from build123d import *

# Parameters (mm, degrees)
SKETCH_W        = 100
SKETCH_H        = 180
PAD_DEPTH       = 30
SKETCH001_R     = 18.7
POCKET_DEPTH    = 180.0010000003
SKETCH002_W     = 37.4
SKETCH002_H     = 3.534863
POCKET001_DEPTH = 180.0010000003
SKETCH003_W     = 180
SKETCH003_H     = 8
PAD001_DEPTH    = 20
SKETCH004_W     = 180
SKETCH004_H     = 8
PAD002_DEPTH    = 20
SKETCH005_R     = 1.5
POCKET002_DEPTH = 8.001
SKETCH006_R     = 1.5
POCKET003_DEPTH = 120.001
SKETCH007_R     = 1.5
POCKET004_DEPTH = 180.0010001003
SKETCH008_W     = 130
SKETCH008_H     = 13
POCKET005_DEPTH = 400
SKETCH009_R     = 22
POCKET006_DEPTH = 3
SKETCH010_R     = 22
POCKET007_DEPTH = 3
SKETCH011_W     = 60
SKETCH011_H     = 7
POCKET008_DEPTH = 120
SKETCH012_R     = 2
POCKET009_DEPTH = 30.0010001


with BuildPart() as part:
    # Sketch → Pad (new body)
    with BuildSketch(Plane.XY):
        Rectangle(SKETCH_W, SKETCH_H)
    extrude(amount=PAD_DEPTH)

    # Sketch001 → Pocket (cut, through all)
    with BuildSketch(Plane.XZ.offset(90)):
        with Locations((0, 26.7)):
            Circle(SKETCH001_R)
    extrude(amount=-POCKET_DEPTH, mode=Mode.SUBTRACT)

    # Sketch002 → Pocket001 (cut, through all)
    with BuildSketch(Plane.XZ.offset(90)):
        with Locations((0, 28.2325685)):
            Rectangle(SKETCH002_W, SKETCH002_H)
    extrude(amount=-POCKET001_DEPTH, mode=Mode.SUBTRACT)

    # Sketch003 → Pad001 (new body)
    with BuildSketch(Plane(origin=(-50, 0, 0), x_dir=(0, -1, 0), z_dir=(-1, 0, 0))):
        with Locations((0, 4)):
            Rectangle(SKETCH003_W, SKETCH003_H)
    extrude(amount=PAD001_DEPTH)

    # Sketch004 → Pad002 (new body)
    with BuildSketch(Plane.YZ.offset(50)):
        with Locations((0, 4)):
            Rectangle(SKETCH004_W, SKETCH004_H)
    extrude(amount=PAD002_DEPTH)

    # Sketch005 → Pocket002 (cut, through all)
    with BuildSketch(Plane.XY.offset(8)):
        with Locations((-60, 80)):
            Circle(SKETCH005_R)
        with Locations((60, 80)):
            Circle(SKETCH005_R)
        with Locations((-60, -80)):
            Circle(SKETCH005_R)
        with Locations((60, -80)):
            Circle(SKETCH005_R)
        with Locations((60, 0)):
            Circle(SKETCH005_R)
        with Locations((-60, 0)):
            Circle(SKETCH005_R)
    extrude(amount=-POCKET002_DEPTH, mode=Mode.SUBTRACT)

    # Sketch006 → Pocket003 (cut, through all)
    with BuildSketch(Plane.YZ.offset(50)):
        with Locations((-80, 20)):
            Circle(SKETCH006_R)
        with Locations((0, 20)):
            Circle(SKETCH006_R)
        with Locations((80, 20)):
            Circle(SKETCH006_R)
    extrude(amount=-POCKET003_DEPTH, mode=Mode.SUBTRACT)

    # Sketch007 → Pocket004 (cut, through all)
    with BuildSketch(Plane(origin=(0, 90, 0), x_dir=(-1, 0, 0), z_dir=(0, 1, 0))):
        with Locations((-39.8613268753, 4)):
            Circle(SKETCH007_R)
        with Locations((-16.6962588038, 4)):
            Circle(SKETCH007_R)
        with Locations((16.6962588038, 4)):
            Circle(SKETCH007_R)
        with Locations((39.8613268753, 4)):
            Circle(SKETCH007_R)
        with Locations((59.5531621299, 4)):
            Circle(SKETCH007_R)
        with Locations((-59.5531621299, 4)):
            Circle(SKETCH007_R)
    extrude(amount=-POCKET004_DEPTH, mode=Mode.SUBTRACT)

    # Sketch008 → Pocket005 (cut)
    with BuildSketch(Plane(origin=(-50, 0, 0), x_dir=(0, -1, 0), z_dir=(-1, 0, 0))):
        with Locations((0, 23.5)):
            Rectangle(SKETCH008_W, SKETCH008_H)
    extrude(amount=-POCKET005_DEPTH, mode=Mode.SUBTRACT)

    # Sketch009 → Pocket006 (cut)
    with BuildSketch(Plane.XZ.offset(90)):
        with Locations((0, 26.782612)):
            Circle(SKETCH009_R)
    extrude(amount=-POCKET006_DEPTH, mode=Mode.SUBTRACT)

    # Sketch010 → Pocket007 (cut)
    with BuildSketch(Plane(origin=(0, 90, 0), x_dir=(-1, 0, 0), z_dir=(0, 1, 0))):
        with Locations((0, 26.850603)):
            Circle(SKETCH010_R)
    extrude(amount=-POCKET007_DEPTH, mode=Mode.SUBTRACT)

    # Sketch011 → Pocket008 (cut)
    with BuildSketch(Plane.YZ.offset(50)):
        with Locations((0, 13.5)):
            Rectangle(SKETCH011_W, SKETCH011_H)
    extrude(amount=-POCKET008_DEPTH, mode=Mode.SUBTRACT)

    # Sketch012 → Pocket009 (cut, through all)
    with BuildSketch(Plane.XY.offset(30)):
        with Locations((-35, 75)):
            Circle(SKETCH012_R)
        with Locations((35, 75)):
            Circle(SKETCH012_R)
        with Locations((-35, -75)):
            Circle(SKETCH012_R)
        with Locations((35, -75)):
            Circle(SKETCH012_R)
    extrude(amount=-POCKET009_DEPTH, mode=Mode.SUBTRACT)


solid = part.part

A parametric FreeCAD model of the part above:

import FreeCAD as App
import Part
import Sketcher
from FreeCAD import Vector


def add_polygon(sketch, points):
    """Adds a closed chain of lines whose ends are joined by coincident constraints."""
    first, n = sketch.GeometryCount, len(points)
    for a, b in zip(points, points[1:] + points[:1]):
        sketch.addGeometry(Part.LineSegment(App.Vector(*a, 0), App.Vector(*b, 0)), False)
    for i in range(n):
        sketch.addConstraint(Sketcher.Constraint("Coincident", first + i, 2, first + (i + 1) % n, 1))

doc = App.newDocument("Part")
params = doc.addObject("Spreadsheet::Sheet", "Params")
for row, (alias, value) in enumerate([
    ("sketch1_width", "100 mm"),
    ("sketch1_height", "180 mm"),
    ("pad1_length", "30 mm"),
    ("sketch2_diameter", "37.4 mm"),
    ("sketch3_width", "37.4 mm"),
    ("sketch4_width", "180 mm"),
    ("sketch4_height", "8 mm"),
    ("pad2_length", "20 mm"),
    ("sketch5_width", "180 mm"),
    ("sketch5_height", "8 mm"),
    ("pad3_length", "20 mm"),
    ("sketch6_diameter", "3 mm"),
    ("sketch7_diameter", "3 mm"),
    ("sketch8_diameter", "3 mm"),
    ("sketch9_width", "130 mm"),
    ("sketch9_height", "13 mm"),
    ("pocket6_length", "400 mm"),
    ("sketch10_diameter", "44 mm"),
    ("pocket7_length", "3 mm"),
    ("sketch11_diameter", "44 mm"),
    ("pocket8_length", "3 mm"),
    ("sketch12_width", "60 mm"),
    ("sketch12_height", "7 mm"),
    ("pocket9_length", "120 mm"),
    ("sketch13_diameter", "4 mm"),
], start=1):
    params.set(f"A{row}", alias)
    params.set(f"B{row}", "=" + value)
    params.setAlias(f"B{row}", alias)

body = doc.addObject("PartDesign::Body", "Body")

# Sketch on XY plane
sketch1 = doc.addObject("Sketcher::SketchObject", "Sketch")
body.addObject(sketch1)
sketch1.AttachmentSupport = (doc.XY_Plane, [""])
sketch1.MapMode = "FlatFace"
add_polygon(sketch1, [(-50, 90), (-50, -90), (50, -90), (50, 90)])  # lines 0-3
sketch1.addConstraint(Sketcher.Constraint("Vertical", 0))
sketch1.addConstraint(Sketcher.Constraint("Horizontal", 1))
sketch1.addConstraint(Sketcher.Constraint("Vertical", 2))
sketch1.addConstraint(Sketcher.Constraint("Horizontal", 3))
sketch1.addConstraint(Sketcher.Constraint("Symmetric", 0, 2, 2, 2, -1, 1))
sketch1.addConstraint(Sketcher.Constraint("DistanceX", 1, 1, 1, 2, 100.0))
sketch1.addConstraint(Sketcher.Constraint("DistanceY", 0, 2, 0, 1, 180.0))
sketch1.setExpression("Constraints[9]", "Params.sketch1_width")
sketch1.setExpression("Constraints[10]", "Params.sketch1_height")
pad1 = doc.addObject("PartDesign::Pad", "Pad")
body.addObject(pad1)
pad1.Profile = sketch1
pad1.setExpression("Length", "Params.pad1_length")

# Sketch on XZ plane
sketch2 = doc.addObject("Sketcher::SketchObject", "Sketch001")
body.addObject(sketch2)
sketch2.AttachmentSupport = (doc.XZ_Plane, [""])
sketch2.MapMode = "FlatFace"
sketch2.AttachmentOffset = App.Placement(Vector(0, 0, 90), App.Rotation())
sketch2.addGeometry(Part.Circle(Vector(0, 27, 0), Vector(0, 0, 1), 19), False)
sketch2.addConstraint(Sketcher.Constraint("PointOnObject", 0, 3, -2))
sketch2.addConstraint(Sketcher.Constraint("Diameter", 0, 37.4))
sketch2.addConstraint(Sketcher.Constraint("DistanceY", -1, 1, 0, 3, 26.7))
sketch2.setExpression("Constraints[1]", "Params.sketch2_diameter")
pocket1 = doc.addObject("PartDesign::Pocket", "Pocket")
body.addObject(pocket1)
pocket1.Profile = sketch2
pocket1.Type = "ThroughAll"

# Sketch on XZ plane
sketch3 = doc.addObject("Sketcher::SketchObject", "Sketch002")
body.addObject(sketch3)
sketch3.AttachmentSupport = (doc.XZ_Plane, [""])
sketch3.MapMode = "FlatFace"
sketch3.AttachmentOffset = App.Placement(Vector(0, 0, 90), App.Rotation())
add_polygon(sketch3, [(-18.7, 30), (-18.7, 26.5), (18.7, 26.5), (18.7, 30)])  # lines 0-3
sketch3.addConstraint(Sketcher.Constraint("Vertical", 0))
sketch3.addConstraint(Sketcher.Constraint("Horizontal", 1))
sketch3.addConstraint(Sketcher.Constraint("Vertical", 2))
sketch3.addConstraint(Sketcher.Constraint("Horizontal", 3))
sketch3.addConstraint(Sketcher.Constraint("DistanceX", 1, 1, 1, 2, 37.4))
sketch3.addConstraint(Sketcher.Constraint("DistanceY", -1, 1, 2, 2, 30.0))
sketch3.addConstraint(Sketcher.Constraint("DistanceX", 0, 2, -1, 1, 18.7))
sketch3.addConstraint(Sketcher.Constraint("DistanceY", 0, 2, 0, 1, 3.534863))
sketch3.setExpression("Constraints[8]", "Params.sketch3_width")
pocket2 = doc.addObject("PartDesign::Pocket", "Pocket001")
body.addObject(pocket2)
pocket2.Profile = sketch3
pocket2.Type = "ThroughAll"

# Sketch on YZ plane
sketch4 = doc.addObject("Sketcher::SketchObject", "Sketch003")
body.addObject(sketch4)
sketch4.AttachmentSupport = (doc.YZ_Plane, [""])
sketch4.MapMode = "FlatFace"
sketch4.AttachmentOffset = App.Placement(Vector(0, 0, -50), App.Rotation())
add_polygon(sketch4, [(90, 8), (90, 0), (-90, 0), (-90, 8)])  # lines 0-3
sketch4.addConstraint(Sketcher.Constraint("Vertical", 0))
sketch4.addConstraint(Sketcher.Constraint("Horizontal", 1))
sketch4.addConstraint(Sketcher.Constraint("Vertical", 2))
sketch4.addConstraint(Sketcher.Constraint("Horizontal", 3))
sketch4.addConstraint(Sketcher.Constraint("Symmetric", 0, 2, 1, 2, -1, 1))
sketch4.addConstraint(Sketcher.Constraint("DistanceX", 1, 2, 1, 1, 180.0))
sketch4.addConstraint(Sketcher.Constraint("DistanceY", 0, 2, 0, 1, 8.0))
sketch4.setExpression("Constraints[9]", "Params.sketch4_width")
sketch4.setExpression("Constraints[10]", "Params.sketch4_height")
pad2 = doc.addObject("PartDesign::Pad", "Pad001")
body.addObject(pad2)
pad2.Profile = sketch4
pad2.setExpression("Length", "Params.pad2_length")
pad2.Reversed = True

# Sketch on YZ plane
sketch5 = doc.addObject("Sketcher::SketchObject", "Sketch004")
body.addObject(sketch5)
sketch5.AttachmentSupport = (doc.YZ_Plane, [""])
sketch5.MapMode = "FlatFace"
sketch5.AttachmentOffset = App.Placement(Vector(0, 0, 50), App.Rotation())
add_polygon(sketch5, [(-90, 8), (-90, 0), (90, 0), (90, 8)])  # lines 0-3
sketch5.addConstraint(Sketcher.Constraint("Vertical", 0))
sketch5.addConstraint(Sketcher.Constraint("Horizontal", 1))
sketch5.addConstraint(Sketcher.Constraint("Vertical", 2))
sketch5.addConstraint(Sketcher.Constraint("Horizontal", 3))
sketch5.addConstraint(Sketcher.Constraint("Symmetric", 0, 2, 1, 2, -1, 1))
sketch5.addConstraint(Sketcher.Constraint("DistanceX", 1, 1, 1, 2, 180.0))
sketch5.addConstraint(Sketcher.Constraint("DistanceY", 0, 2, 0, 1, 8.0))
sketch5.setExpression("Constraints[9]", "Params.sketch5_width")
sketch5.setExpression("Constraints[10]", "Params.sketch5_height")
pad3 = doc.addObject("PartDesign::Pad", "Pad002")
body.addObject(pad3)
pad3.Profile = sketch5
pad3.setExpression("Length", "Params.pad3_length")

# Sketch on XY plane
sketch6 = doc.addObject("Sketcher::SketchObject", "Sketch005")
body.addObject(sketch6)
sketch6.AttachmentSupport = (doc.XY_Plane, [""])
sketch6.MapMode = "FlatFace"
sketch6.AttachmentOffset = App.Placement(Vector(0, 0, 8), App.Rotation())
sketch6.addGeometry(Part.Circle(Vector(-60, 80, 0), Vector(0, 0, 1), 1.5), False)
sketch6.addGeometry(Part.Circle(Vector(60, 80, 0), Vector(0, 0, 1), 1.5), False)
sketch6.addGeometry(Part.Circle(Vector(-60, -80, 0), Vector(0, 0, 1), 1.5), False)
sketch6.addGeometry(Part.Circle(Vector(60, -80, 0), Vector(0, 0, 1), 1.5), False)
sketch6.addGeometry(Part.Circle(Vector(60, 0, 0), Vector(0, 0, 1), 1.5), False)
sketch6.addGeometry(Part.Circle(Vector(-60, 0, 0), Vector(0, 0, 1), 1.5), False)
sketch6.addConstraint(Sketcher.Constraint("Equal", 0, 1))
sketch6.addConstraint(Sketcher.Constraint("Equal", 1, 2))
sketch6.addConstraint(Sketcher.Constraint("Equal", 2, 3))
sketch6.addConstraint(Sketcher.Constraint("Equal", 3, 4))
sketch6.addConstraint(Sketcher.Constraint("Equal", 4, 5))
sketch6.addConstraint(Sketcher.Constraint("Symmetric", 1, 3, 2, 3, -1, 1))
sketch6.addConstraint(Sketcher.Constraint("Symmetric", 0, 3, 3, 3, -1, 1))
sketch6.addConstraint(Sketcher.Constraint("Symmetric", 4, 3, 5, 3, -1, 1))
sketch6.addConstraint(Sketcher.Constraint("Symmetric", 0, 3, 1, 3, -2))
sketch6.addConstraint(Sketcher.Constraint("PointOnObject", 4, 3, -1))
sketch6.addConstraint(Sketcher.Constraint("Vertical", 3, 3, 4, 3))
sketch6.addConstraint(Sketcher.Constraint("Diameter", 0, 3.0))
sketch6.addConstraint(Sketcher.Constraint("DistanceX", 0, 3, -1, 1, 60.0))
sketch6.addConstraint(Sketcher.Constraint("DistanceY", -1, 1, 0, 3, 80.0))
sketch6.setExpression("Constraints[11]", "Params.sketch6_diameter")
pocket3 = doc.addObject("PartDesign::Pocket", "Pocket002")
body.addObject(pocket3)
pocket3.Profile = sketch6
pocket3.Type = "ThroughAll"

# Sketch on YZ plane
sketch7 = doc.addObject("Sketcher::SketchObject", "Sketch006")
body.addObject(sketch7)
sketch7.AttachmentSupport = (doc.YZ_Plane, [""])
sketch7.MapMode = "FlatFace"
sketch7.AttachmentOffset = App.Placement(Vector(0, 0, 50), App.Rotation())
sketch7.addGeometry(Part.Circle(Vector(-80, 20, 0), Vector(0, 0, 1), 1.5), False)
sketch7.addGeometry(Part.Circle(Vector(0, 20, 0), Vector(0, 0, 1), 1.5), False)
sketch7.addGeometry(Part.Circle(Vector(80, 20, 0), Vector(0, 0, 1), 1.5), False)
sketch7.addConstraint(Sketcher.Constraint("Equal", 0, 1))
sketch7.addConstraint(Sketcher.Constraint("Equal", 1, 2))
sketch7.addConstraint(Sketcher.Constraint("Symmetric", 0, 3, 2, 3, -2))
sketch7.addConstraint(Sketcher.Constraint("PointOnObject", 1, 3, -2))
sketch7.addConstraint(Sketcher.Constraint("Horizontal", 0, 3, 1, 3))
sketch7.addConstraint(Sketcher.Constraint("Diameter", 0, 3.0))
sketch7.addConstraint(Sketcher.Constraint("DistanceX", 0, 3, -1, 1, 80.0))
sketch7.addConstraint(Sketcher.Constraint("DistanceY", -1, 1, 0, 3, 20.0))
sketch7.setExpression("Constraints[5]", "Params.sketch7_diameter")
pocket4 = doc.addObject("PartDesign::Pocket", "Pocket003")
body.addObject(pocket4)
pocket4.Profile = sketch7
pocket4.Type = "ThroughAll"

# Sketch on XZ plane
sketch8 = doc.addObject("Sketcher::SketchObject", "Sketch007")
body.addObject(sketch8)
sketch8.AttachmentSupport = (doc.XZ_Plane, [""])
sketch8.MapMode = "FlatFace"
sketch8.AttachmentOffset = App.Placement(Vector(0, 0, -90), App.Rotation())
sketch8.addGeometry(Part.Circle(Vector(39.9, 4, 0), Vector(0, 0, 1), 1.5), False)
sketch8.addGeometry(Part.Circle(Vector(16.7, 4, 0), Vector(0, 0, 1), 1.5), False)
sketch8.addGeometry(Part.Circle(Vector(-16.7, 4, 0), Vector(0, 0, 1), 1.5), False)
sketch8.addGeometry(Part.Circle(Vector(-39.9, 4, 0), Vector(0, 0, 1), 1.5), False)
sketch8.addGeometry(Part.Circle(Vector(-59.6, 4, 0), Vector(0, 0, 1), 1.5), False)
sketch8.addGeometry(Part.Circle(Vector(59.6, 4, 0), Vector(0, 0, 1), 1.5), False)
sketch8.addConstraint(Sketcher.Constraint("Equal", 0, 1))
sketch8.addConstraint(Sketcher.Constraint("Equal", 1, 2))
sketch8.addConstraint(Sketcher.Constraint("Equal", 2, 3))
sketch8.addConstraint(Sketcher.Constraint("Equal", 3, 4))
sketch8.addConstraint(Sketcher.Constraint("Equal", 4, 5))
sketch8.addConstraint(Sketcher.Constraint("Symmetric", 1, 3, 2, 3, -2))
sketch8.addConstraint(Sketcher.Constraint("Symmetric", 0, 3, 3, 3, -2))
sketch8.addConstraint(Sketcher.Constraint("Symmetric", 4, 3, 5, 3, -2))
sketch8.addConstraint(Sketcher.Constraint("Horizontal", 0, 3, 1, 3))
sketch8.addConstraint(Sketcher.Constraint("Horizontal", 3, 3, 4, 3))
sketch8.addConstraint(Sketcher.Constraint("Diameter", 0, 3.0))
sketch8.addConstraint(Sketcher.Constraint("DistanceY", -1, 1, 0, 3, 4.0))
sketch8.addConstraint(Sketcher.Constraint("DistanceX", -1, 1, 1, 3, 16.696259))
sketch8.addConstraint(Sketcher.Constraint("DistanceX", 1, 3, 0, 3, 23.165068))
sketch8.addConstraint(Sketcher.Constraint("DistanceX", 4, 3, 1, 3, 76.249421))
sketch8.setExpression("Constraints[10]", "Params.sketch8_diameter")
pocket5 = doc.addObject("PartDesign::Pocket", "Pocket004")
body.addObject(pocket5)
pocket5.Profile = sketch8
pocket5.Type = "ThroughAll"
pocket5.Reversed = True

# Sketch on YZ plane
sketch9 = doc.addObject("Sketcher::SketchObject", "Sketch008")
body.addObject(sketch9)
sketch9.AttachmentSupport = (doc.YZ_Plane, [""])
sketch9.MapMode = "FlatFace"
sketch9.AttachmentOffset = App.Placement(Vector(0, 0, -50), App.Rotation())
add_polygon(sketch9, [(65, 30), (65, 17), (-65, 17), (-65, 30)])  # lines 0-3
sketch9.addConstraint(Sketcher.Constraint("Vertical", 0))
sketch9.addConstraint(Sketcher.Constraint("Horizontal", 1))
sketch9.addConstraint(Sketcher.Constraint("Vertical", 2))
sketch9.addConstraint(Sketcher.Constraint("Horizontal", 3))
sketch9.addConstraint(Sketcher.Constraint("DistanceX", 1, 2, 1, 1, 130.0))
sketch9.addConstraint(Sketcher.Constraint("DistanceY", 0, 2, 0, 1, 13.0))
sketch9.addConstraint(Sketcher.Constraint("DistanceX", -1, 1, 0, 2, 65.0))
sketch9.addConstraint(Sketcher.Constraint("DistanceY", -1, 1, 0, 2, 17.0))
sketch9.setExpression("Constraints[8]", "Params.sketch9_width")
sketch9.setExpression("Constraints[9]", "Params.sketch9_height")
pocket6 = doc.addObject("PartDesign::Pocket", "Pocket005")
body.addObject(pocket6)
pocket6.Profile = sketch9
pocket6.setExpression("Length", "Params.pocket6_length")
pocket6.Reversed = True

# Sketch on XZ plane
sketch10 = doc.addObject("Sketcher::SketchObject", "Sketch009")
body.addObject(sketch10)
sketch10.AttachmentSupport = (doc.XZ_Plane, [""])
sketch10.MapMode = "FlatFace"
sketch10.AttachmentOffset = App.Placement(Vector(0, 0, 90), App.Rotation())
sketch10.addGeometry(Part.Circle(Vector(0, 27, 0), Vector(0, 0, 1), 22), False)
sketch10.addConstraint(Sketcher.Constraint("PointOnObject", 0, 3, -2))
sketch10.addConstraint(Sketcher.Constraint("Diameter", 0, 44.0))
sketch10.addConstraint(Sketcher.Constraint("DistanceY", -1, 1, 0, 3, 26.782612))
sketch10.setExpression("Constraints[1]", "Params.sketch10_diameter")
pocket7 = doc.addObject("PartDesign::Pocket", "Pocket006")
body.addObject(pocket7)
pocket7.Profile = sketch10
pocket7.setExpression("Length", "Params.pocket7_length")

# Sketch on XZ plane
sketch11 = doc.addObject("Sketcher::SketchObject", "Sketch010")
body.addObject(sketch11)
sketch11.AttachmentSupport = (doc.XZ_Plane, [""])
sketch11.MapMode = "FlatFace"
sketch11.AttachmentOffset = App.Placement(Vector(0, 0, -90), App.Rotation())
sketch11.addGeometry(Part.Circle(Vector(0, 27, 0), Vector(0, 0, 1), 22), False)
sketch11.addConstraint(Sketcher.Constraint("PointOnObject", 0, 3, -2))
sketch11.addConstraint(Sketcher.Constraint("Diameter", 0, 44.0))
sketch11.addConstraint(Sketcher.Constraint("DistanceY", -1, 1, 0, 3, 26.850603))
sketch11.setExpression("Constraints[1]", "Params.sketch11_diameter")
pocket8 = doc.addObject("PartDesign::Pocket", "Pocket007")
body.addObject(pocket8)
pocket8.Profile = sketch11
pocket8.setExpression("Length", "Params.pocket8_length")
pocket8.Reversed = True

# Sketch on YZ plane
sketch12 = doc.addObject("Sketcher::SketchObject", "Sketch011")
body.addObject(sketch12)
sketch12.AttachmentSupport = (doc.YZ_Plane, [""])
sketch12.MapMode = "FlatFace"
sketch12.AttachmentOffset = App.Placement(Vector(0, 0, 50), App.Rotation())
add_polygon(sketch12, [(-30, 17), (-30, 10), (30, 10), (30, 17)])  # lines 0-3
sketch12.addConstraint(Sketcher.Constraint("Vertical", 0))
sketch12.addConstraint(Sketcher.Constraint("Horizontal", 1))
sketch12.addConstraint(Sketcher.Constraint("Vertical", 2))
sketch12.addConstraint(Sketcher.Constraint("Horizontal", 3))
sketch12.addConstraint(Sketcher.Constraint("DistanceX", 1, 1, 1, 2, 60.0))
sketch12.addConstraint(Sketcher.Constraint("DistanceY", 0, 2, 0, 1, 7.0))
sketch12.addConstraint(Sketcher.Constraint("DistanceX", 0, 2, -1, 1, 30.0))
sketch12.addConstraint(Sketcher.Constraint("DistanceY", -1, 1, 0, 2, 10.0))
sketch12.setExpression("Constraints[8]", "Params.sketch12_width")
sketch12.setExpression("Constraints[9]", "Params.sketch12_height")
pocket9 = doc.addObject("PartDesign::Pocket", "Pocket008")
body.addObject(pocket9)
pocket9.Profile = sketch12
pocket9.setExpression("Length", "Params.pocket9_length")

# Sketch on XY plane
sketch13 = doc.addObject("Sketcher::SketchObject", "Sketch012")
body.addObject(sketch13)
sketch13.AttachmentSupport = (doc.XY_Plane, [""])
sketch13.MapMode = "FlatFace"
sketch13.AttachmentOffset = App.Placement(Vector(0, 0, 30), App.Rotation())
sketch13.addGeometry(Part.Circle(Vector(-35, 75, 0), Vector(0, 0, 1), 2), False)
sketch13.addGeometry(Part.Circle(Vector(35, 75, 0), Vector(0, 0, 1), 2), False)
sketch13.addGeometry(Part.Circle(Vector(-35, -75, 0), Vector(0, 0, 1), 2), False)
sketch13.addGeometry(Part.Circle(Vector(35, -75, 0), Vector(0, 0, 1), 2), False)
sketch13.addConstraint(Sketcher.Constraint("Equal", 0, 1))
sketch13.addConstraint(Sketcher.Constraint("Equal", 1, 2))
sketch13.addConstraint(Sketcher.Constraint("Equal", 2, 3))
sketch13.addConstraint(Sketcher.Constraint("Symmetric", 1, 3, 2, 3, -1, 1))
sketch13.addConstraint(Sketcher.Constraint("Symmetric", 0, 3, 3, 3, -1, 1))
sketch13.addConstraint(Sketcher.Constraint("Symmetric", 0, 3, 1, 3, -2))
sketch13.addConstraint(Sketcher.Constraint("Diameter", 0, 4.0))
sketch13.addConstraint(Sketcher.Constraint("DistanceX", 0, 3, -1, 1, 35.0))
sketch13.addConstraint(Sketcher.Constraint("DistanceY", -1, 1, 0, 3, 75.0))
sketch13.setExpression("Constraints[6]", "Params.sketch13_diameter")
pocket10 = doc.addObject("PartDesign::Pocket", "Pocket009")
body.addObject(pocket10)
pocket10.Profile = sketch13
pocket10.Type = "ThroughAll"

doc.recompute()
